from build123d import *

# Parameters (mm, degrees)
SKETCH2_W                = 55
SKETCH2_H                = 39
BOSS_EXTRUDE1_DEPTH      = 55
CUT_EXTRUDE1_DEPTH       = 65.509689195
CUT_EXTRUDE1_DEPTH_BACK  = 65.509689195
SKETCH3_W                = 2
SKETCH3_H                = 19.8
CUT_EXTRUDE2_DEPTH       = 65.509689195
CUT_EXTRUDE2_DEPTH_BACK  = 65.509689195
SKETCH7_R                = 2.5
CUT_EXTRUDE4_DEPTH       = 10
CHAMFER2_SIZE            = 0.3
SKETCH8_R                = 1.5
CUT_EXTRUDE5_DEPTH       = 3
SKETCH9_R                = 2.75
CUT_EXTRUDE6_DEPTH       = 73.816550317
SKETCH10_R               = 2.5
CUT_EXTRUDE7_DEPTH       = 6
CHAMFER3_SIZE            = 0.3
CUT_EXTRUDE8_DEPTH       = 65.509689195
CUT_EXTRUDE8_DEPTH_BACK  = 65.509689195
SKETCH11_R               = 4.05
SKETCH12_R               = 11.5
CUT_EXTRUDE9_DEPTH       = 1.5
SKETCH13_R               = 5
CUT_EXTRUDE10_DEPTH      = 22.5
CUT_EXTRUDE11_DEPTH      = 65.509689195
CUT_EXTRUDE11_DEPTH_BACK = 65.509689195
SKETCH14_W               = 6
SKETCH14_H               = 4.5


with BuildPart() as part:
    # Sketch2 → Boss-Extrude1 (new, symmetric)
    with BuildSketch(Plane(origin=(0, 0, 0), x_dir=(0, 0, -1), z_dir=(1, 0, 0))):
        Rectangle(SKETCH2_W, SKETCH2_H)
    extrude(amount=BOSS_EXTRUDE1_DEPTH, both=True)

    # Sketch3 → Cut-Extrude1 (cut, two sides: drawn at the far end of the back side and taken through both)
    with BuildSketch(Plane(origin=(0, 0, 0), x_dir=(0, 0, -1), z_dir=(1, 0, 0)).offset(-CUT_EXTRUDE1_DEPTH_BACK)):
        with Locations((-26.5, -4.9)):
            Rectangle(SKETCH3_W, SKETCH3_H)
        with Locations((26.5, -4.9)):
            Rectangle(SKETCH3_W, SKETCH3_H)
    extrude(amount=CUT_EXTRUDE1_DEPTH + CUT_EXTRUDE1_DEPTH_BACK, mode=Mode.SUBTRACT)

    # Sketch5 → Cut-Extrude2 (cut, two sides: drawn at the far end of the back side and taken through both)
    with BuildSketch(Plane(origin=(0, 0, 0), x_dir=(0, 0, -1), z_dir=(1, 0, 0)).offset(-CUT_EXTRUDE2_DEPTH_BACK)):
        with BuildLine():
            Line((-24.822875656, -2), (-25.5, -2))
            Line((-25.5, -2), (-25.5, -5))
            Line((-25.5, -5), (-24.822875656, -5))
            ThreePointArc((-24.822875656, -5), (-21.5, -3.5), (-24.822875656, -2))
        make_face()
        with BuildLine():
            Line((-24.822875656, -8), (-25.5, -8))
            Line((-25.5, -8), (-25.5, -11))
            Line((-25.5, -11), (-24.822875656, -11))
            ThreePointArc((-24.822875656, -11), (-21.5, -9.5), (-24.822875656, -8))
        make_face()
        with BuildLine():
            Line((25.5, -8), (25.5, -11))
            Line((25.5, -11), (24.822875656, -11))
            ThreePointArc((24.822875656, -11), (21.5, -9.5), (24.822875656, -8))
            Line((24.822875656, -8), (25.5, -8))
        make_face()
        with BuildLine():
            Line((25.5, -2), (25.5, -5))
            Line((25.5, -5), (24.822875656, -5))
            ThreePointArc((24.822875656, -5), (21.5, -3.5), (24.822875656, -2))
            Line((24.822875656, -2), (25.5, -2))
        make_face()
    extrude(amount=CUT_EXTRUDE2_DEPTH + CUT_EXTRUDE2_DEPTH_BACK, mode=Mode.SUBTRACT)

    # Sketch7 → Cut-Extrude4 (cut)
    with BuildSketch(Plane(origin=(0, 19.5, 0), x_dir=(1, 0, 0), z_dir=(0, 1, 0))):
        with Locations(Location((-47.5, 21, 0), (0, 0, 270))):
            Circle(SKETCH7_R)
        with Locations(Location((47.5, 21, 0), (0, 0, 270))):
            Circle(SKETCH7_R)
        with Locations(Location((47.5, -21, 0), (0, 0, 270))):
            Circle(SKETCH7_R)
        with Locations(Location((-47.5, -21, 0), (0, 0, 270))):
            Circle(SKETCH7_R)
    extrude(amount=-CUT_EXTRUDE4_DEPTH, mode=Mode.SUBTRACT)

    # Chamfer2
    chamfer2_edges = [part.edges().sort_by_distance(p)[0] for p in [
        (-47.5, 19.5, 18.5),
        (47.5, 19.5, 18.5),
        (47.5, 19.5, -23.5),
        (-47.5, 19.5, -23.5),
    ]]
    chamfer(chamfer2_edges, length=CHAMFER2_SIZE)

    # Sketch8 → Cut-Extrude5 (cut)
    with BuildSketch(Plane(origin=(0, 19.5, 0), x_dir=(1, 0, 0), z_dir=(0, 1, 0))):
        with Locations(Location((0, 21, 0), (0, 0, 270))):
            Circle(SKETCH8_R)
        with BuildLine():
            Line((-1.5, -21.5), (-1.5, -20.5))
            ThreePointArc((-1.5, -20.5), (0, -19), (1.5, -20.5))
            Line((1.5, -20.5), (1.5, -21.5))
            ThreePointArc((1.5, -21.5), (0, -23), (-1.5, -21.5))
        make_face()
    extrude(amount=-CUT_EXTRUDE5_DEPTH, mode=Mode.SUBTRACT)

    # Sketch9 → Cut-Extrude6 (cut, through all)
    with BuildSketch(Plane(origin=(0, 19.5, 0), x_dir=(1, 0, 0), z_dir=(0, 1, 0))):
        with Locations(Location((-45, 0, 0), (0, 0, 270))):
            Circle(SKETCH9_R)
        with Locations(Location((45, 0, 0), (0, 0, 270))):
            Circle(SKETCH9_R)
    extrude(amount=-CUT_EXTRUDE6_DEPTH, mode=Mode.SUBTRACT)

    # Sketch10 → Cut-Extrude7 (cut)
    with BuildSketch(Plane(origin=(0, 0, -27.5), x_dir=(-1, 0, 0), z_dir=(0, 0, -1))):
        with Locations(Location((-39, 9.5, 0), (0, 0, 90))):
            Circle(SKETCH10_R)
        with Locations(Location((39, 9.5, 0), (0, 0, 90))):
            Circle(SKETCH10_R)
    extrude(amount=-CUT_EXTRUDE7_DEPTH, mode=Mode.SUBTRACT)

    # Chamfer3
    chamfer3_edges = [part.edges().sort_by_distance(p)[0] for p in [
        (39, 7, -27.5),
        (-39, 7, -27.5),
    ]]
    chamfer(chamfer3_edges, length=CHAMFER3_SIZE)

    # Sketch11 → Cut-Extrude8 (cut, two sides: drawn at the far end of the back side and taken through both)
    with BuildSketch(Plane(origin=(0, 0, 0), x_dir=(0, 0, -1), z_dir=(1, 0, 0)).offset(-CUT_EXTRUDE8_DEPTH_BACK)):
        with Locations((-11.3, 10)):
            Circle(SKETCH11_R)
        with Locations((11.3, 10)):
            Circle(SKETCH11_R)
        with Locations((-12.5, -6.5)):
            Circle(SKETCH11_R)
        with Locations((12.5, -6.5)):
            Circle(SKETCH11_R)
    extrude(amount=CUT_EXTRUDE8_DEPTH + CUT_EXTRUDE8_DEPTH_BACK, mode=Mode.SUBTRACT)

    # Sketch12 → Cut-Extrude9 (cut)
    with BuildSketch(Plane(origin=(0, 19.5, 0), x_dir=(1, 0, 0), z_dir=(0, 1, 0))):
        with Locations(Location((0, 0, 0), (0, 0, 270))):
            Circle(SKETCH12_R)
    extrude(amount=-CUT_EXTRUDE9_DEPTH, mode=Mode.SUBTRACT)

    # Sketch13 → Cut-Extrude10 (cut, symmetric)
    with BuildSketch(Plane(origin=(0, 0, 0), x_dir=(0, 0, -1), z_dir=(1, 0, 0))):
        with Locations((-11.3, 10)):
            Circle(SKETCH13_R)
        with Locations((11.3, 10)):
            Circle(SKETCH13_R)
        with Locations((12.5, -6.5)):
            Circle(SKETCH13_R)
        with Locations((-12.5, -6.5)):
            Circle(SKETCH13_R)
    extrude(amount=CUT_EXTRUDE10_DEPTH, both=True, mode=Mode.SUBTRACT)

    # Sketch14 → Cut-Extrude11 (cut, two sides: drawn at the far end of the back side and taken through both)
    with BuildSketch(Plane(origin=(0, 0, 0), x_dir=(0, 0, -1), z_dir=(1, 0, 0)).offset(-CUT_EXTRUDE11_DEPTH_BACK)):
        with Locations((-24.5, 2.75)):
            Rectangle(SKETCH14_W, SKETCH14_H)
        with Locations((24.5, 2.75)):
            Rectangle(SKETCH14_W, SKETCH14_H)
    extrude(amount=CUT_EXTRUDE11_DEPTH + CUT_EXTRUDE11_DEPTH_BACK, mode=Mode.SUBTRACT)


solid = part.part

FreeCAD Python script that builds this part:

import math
import FreeCAD as App
import Part
import Sketcher
from FreeCAD import Vector


def edges_at(feature, points):
    """Names of the edges that pass closest to the given points."""
    edges = feature.Shape.Edges
    near = lambda p: min(range(len(edges)), key=lambda i: edges[i].distToShape(Part.Vertex(*p))[0])
    return sorted({f"Edge{near(p) + 1}" for p in points})

doc = App.newDocument("Part")
body = doc.addObject("PartDesign::Body", "Body")

sketch1 = doc.addObject("Sketcher::SketchObject", "Sketch")
body.addObject(sketch1)
sketch1.AttachmentSupport = (doc.YZ_Plane, [""])
sketch1.MapMode = "FlatFace"
sketch1.addGeometry([
    Part.LineSegment(Vector(19.5, 27.5, 0), Vector(-19.5, 27.5, 0)),
    Part.LineSegment(Vector(-19.5, 27.5, 0), Vector(-19.5, -27.5, 0)),
    Part.LineSegment(Vector(-19.5, -27.5, 0), Vector(19.5, -27.5, 0)),
    Part.LineSegment(Vector(19.5, -27.5, 0), Vector(19.5, 27.5, 0)),
], False)
sketch1.addConstraint([
    Sketcher.Constraint("Coincident", 0, 2, 1, 1),
    Sketcher.Constraint("Coincident", 1, 2, 2, 1),
    Sketcher.Constraint("Coincident", 2, 2, 3, 1),
    Sketcher.Constraint("Coincident", 3, 2, 0, 1),
    Sketcher.Constraint("Horizontal", 0),
    Sketcher.Constraint("Vertical", 1),
    Sketcher.Constraint("Horizontal", 2),
    Sketcher.Constraint("Vertical", 3),
    Sketcher.Constraint("Symmetric", 0, 2, 2, 2, -1, 1),
    Sketcher.Constraint("DistanceX", 0, 2, 0, 1, 39.0),
    Sketcher.Constraint("DistanceY", 1, 2, 1, 1, 55.0),
])
pad1 = doc.addObject("PartDesign::Pad", "Pad")
body.addObject(pad1)
pad1.Profile = sketch1
pad1.Length = 110
pad1.Midplane = True

sketch2 = doc.addObject("Sketcher::SketchObject", "Sketch001")
body.addObject(sketch2)
sketch2.AttachmentSupport = (doc.YZ_Plane, [""])
sketch2.MapMode = "FlatFace"
sketch2.addGeometry([
    Part.LineSegment(Vector(5, 27.5, 0), Vector(-14.8, 27.5, 0)),
    Part.LineSegment(Vector(-14.8, 27.5, 0), Vector(-14.8, 25.5, 0)),
    Part.LineSegment(Vector(-14.8, 25.5, 0), Vector(5, 25.5, 0)),
    Part.LineSegment(Vector(5, 25.5, 0), Vector(5, 27.5, 0)),
    Part.LineSegment(Vector(5, -25.5, 0), Vector(-14.8, -25.5, 0)),
    Part.LineSegment(Vector(-14.8, -25.5, 0), Vector(-14.8, -27.5, 0)),
    Part.LineSegment(Vector(-14.8, -27.5, 0), Vector(5, -27.5, 0)),
    Part.LineSegment(Vector(5, -27.5, 0), Vector(5, -25.5, 0)),
], False)
sketch2.addConstraint([
    Sketcher.Constraint("Coincident", 0, 2, 1, 1),
    Sketcher.Constraint("Coincident", 1, 2, 2, 1),
    Sketcher.Constraint("Coincident", 2, 2, 3, 1),
    Sketcher.Constraint("Coincident", 3, 2, 0, 1),
    Sketcher.Constraint("Coincident", 4, 2, 5, 1),
    Sketcher.Constraint("Coincident", 5, 2, 6, 1),
    Sketcher.Constraint("Coincident", 6, 2, 7, 1),
    Sketcher.Constraint("Coincident", 7, 2, 4, 1),
    Sketcher.Constraint("Horizontal", 0),
    Sketcher.Constraint("Vertical", 1),
    Sketcher.Constraint("Horizontal", 2),
    Sketcher.Constraint("Vertical", 3),
    Sketcher.Constraint("Horizontal", 4),
    Sketcher.Constraint("Vertical", 5),
    Sketcher.Constraint("Horizontal", 6),
    Sketcher.Constraint("Vertical", 7),
    Sketcher.Constraint("Symmetric", 1, 2, 4, 2, -1),
    Sketcher.Constraint("Symmetric", 3, 2, 6, 2, -1),
    Sketcher.Constraint("DistanceY", 1, 2, 1, 1, 2.0),
    Sketcher.Constraint("DistanceX", 0, 2, 0, 1, 19.8),
    Sketcher.Constraint("DistanceX", -1, 1, 2, 2, 5.0),
    Sketcher.Constraint("DistanceY", 4, 2, 1, 2, 51.0),
])
pocket1 = doc.addObject("PartDesign::Pocket", "Pocket")
body.addObject(pocket1)
pocket1.Profile = sketch2
pocket1.Type = "ThroughAll"
pocket1.Midplane = True

sketch3 = doc.addObject("Sketcher::SketchObject", "Sketch002")
body.addObject(sketch3)
sketch3.AttachmentSupport = (doc.YZ_Plane, [""])
sketch3.MapMode = "FlatFace"
sketch3.addGeometry([
    Part.LineSegment(Vector(-2, 24.822876, 0), Vector(-2, 25.5, 0)),
    Part.LineSegment(Vector(-2, 25.5, 0), Vector(-5, 25.5, 0)),
    Part.LineSegment(Vector(-5, 25.5, 0), Vector(-5, 24.822876, 0)),
    Part.ArcOfCircle(Part.Circle(Vector(-3.5, 23.5, 0), Vector(0, 0, 1), 2), math.radians(138.590378), math.radians(401.409622)),
    Part.LineSegment(Vector(-8, 24.822876, 0), Vector(-8, 25.5, 0)),
    Part.LineSegment(Vector(-8, 25.5, 0), Vector(-11, 25.5, 0)),
    Part.LineSegment(Vector(-11, 25.5, 0), Vector(-11, 24.822876, 0)),
    Part.ArcOfCircle(Part.Circle(Vector(-9.5, 23.5, 0), Vector(0, 0, 1), 2), math.radians(138.590378), math.radians(401.409622)),
    Part.LineSegment(Vector(-11, -25.5, 0), Vector(-8, -25.5, 0)),
    Part.LineSegment(Vector(-8, -25.5, 0), Vector(-8, -24.822876, 0)),
    Part.ArcOfCircle(Part.Circle(Vector(-9.5, -23.5, 0), Vector(0, 0, 1), 2), math.radians(-41.409622), math.radians(221.409622)),
    Part.LineSegment(Vector(-11, -24.822876, 0), Vector(-11, -25.5, 0)),
    Part.LineSegment(Vector(-5, -25.5, 0), Vector(-2, -25.5, 0)),
    Part.LineSegment(Vector(-2, -25.5, 0), Vector(-2, -24.822876, 0)),
    Part.ArcOfCircle(Part.Circle(Vector(-3.5, -23.5, 0), Vector(0, 0, 1), 2), math.radians(-41.409622), math.radians(221.409622)),
    Part.LineSegment(Vector(-5, -24.822876, 0), Vector(-5, -25.5, 0)),
], False)
sketch3.addConstraint([
    Sketcher.Constraint("Coincident", 0, 2, 1, 1),
    Sketcher.Constraint("Coincident", 1, 2, 2, 1),
    Sketcher.Constraint("Coincident", 2, 2, 3, 1),
    Sketcher.Constraint("Coincident", 3, 2, 0, 1),
    Sketcher.Constraint("Coincident", 4, 2, 5, 1),
    Sketcher.Constraint("Coincident", 5, 2, 6, 1),
    Sketcher.Constraint("Coincident", 6, 2, 7, 1),
    Sketcher.Constraint("Coincident", 7, 2, 4, 1),
    Sketcher.Constraint("Coincident", 8, 2, 9, 1),
    Sketcher.Constraint("Coincident", 9, 2, 10, 1),
    Sketcher.Constraint("Coincident", 10, 2, 11, 1),
    Sketcher.Constraint("Coincident", 11, 2, 8, 1),
    Sketcher.Constraint("Coincident", 12, 2, 13, 1),
    Sketcher.Constraint("Coincident", 13, 2, 14, 1),
    Sketcher.Constraint("Coincident", 14, 2, 15, 1),
    Sketcher.Constraint("Coincident", 15, 2, 12, 1),
    Sketcher.Constraint("Vertical", 0),
    Sketcher.Constraint("Horizontal", 1),
    Sketcher.Constraint("Vertical", 2),
    Sketcher.Constraint("Vertical", 4),
    Sketcher.Constraint("Horizontal", 5),
    Sketcher.Constraint("Vertical", 6),
    Sketcher.Constraint("Horizontal", 8),
    Sketcher.Constraint("Vertical", 9),
    Sketcher.Constraint("Vertical", 11),
    Sketcher.Constraint("Horizontal", 12),
    Sketcher.Constraint("Vertical", 13),
    Sketcher.Constraint("Vertical", 15),
    Sketcher.Constraint("Equal", 3, 7),
    Sketcher.Constraint("Equal", 7, 10),
    Sketcher.Constraint("Equal", 10, 14),
    Sketcher.Constraint("Symmetric", 7, 3, 10, 3, -1),
    Sketcher.Constraint("Symmetric", 3, 3, 14, 3, -1),
    Sketcher.Constraint("Symmetric", 4, 2, 8, 2, -1),
    Sketcher.Constraint("Symmetric", 0, 2, 12, 2, -1),
    Sketcher.Constraint("Horizontal", 3, 3, 7, 3),
    Sketcher.Constraint("Horizontal", 2, 2, 3, 2),
    Sketcher.Constraint("Horizontal", 1, 2, 4, 2),
    Sketcher.Constraint("Horizontal", 3, 2, 6, 2),
    Sketcher.Constraint("Horizontal", 6, 2, 7, 2),
    Sketcher.Constraint("Horizontal", 9, 2, 10, 2),
    Sketcher.Constraint("Horizontal", 13, 2, 14, 2),
    Sketcher.Constraint("Radius", 3, 2.0),
    Sketcher.Constraint("DistanceX", 1, 2, 1, 1, 3.0),
    Sketcher.Constraint("DistanceX", 0, 2, -1, 1, 2.0),
    Sketcher.Constraint("DistanceX", 4, 2, -1, 1, 8.0),
    Sketcher.Constraint("DistanceY", 10, 3, 7, 3, 47.0),
    Sketcher.Constraint("DistanceY", 3, 3, 0, 2, 2.0),
])
pocket2 = doc.addObject("PartDesign::Pocket", "Pocket001")
body.addObject(pocket2)
pocket2.Profile = sketch3
pocket2.Type = "ThroughAll"
pocket2.Midplane = True

sketch4 = doc.addObject("Sketcher::SketchObject", "Sketch003")
body.addObject(sketch4)
sketch4.AttachmentSupport = (doc.XZ_Plane, [""])
sketch4.MapMode = "FlatFace"
sketch4.AttachmentOffset = App.Placement(Vector(0, 0, -19.5), App.Rotation())
sketch4.addGeometry([
    Part.Circle(Vector(-47.5, -21, 0), Vector(0, 0, 1), 2.5),
    Part.Circle(Vector(47.5, -21, 0), Vector(0, 0, 1), 2.5),
    Part.Circle(Vector(47.5, 21, 0), Vector(0, 0, 1), 2.5),
    Part.Circle(Vector(-47.5, 21, 0), Vector(0, 0, 1), 2.5),
], False)
sketch4.addConstraint([
    Sketcher.Constraint("Equal", 0, 1),
    Sketcher.Constraint("Equal", 1, 2),
    Sketcher.Constraint("Equal", 2, 3),
    Sketcher.Constraint("Symmetric", 0, 3, 2, 3, -1, 1),
    Sketcher.Constraint("Symmetric", 1, 3, 3, 3, -1, 1),
    Sketcher.Constraint("Symmetric", 0, 3, 1, 3, -2),
    Sketcher.Constraint("Diameter", 0, 5.0),
    Sketcher.Constraint("DistanceY", 0, 3, -1, 1, 21.0),
    Sketcher.Constraint("DistanceX", 0, 3, 1, 3, 95.0),
])
pocket3 = doc.addObject("PartDesign::Pocket", "Pocket002")
body.addObject(pocket3)
pocket3.Profile = sketch4
pocket3.Length = 10
pocket3.Reversed = True
doc.recompute()

chamfer = doc.addObject("PartDesign::Chamfer", "Chamfer")
body.addObject(chamfer)
chamfer.Base = (pocket3, edges_at(pocket3, [
    (-47.5, 19.5, 18.5),
    (47.5, 19.5, 18.5),
    (47.5, 19.5, -23.5),
    (-47.5, 19.5, -23.5),
]))
chamfer.Size = 0.3

sketch5 = doc.addObject("Sketcher::SketchObject", "Sketch004")
body.addObject(sketch5)
sketch5.AttachmentSupport = (doc.XZ_Plane, [""])
sketch5.MapMode = "FlatFace"
sketch5.AttachmentOffset = App.Placement(Vector(0, 0, -19.5), App.Rotation())
sketch5.addGeometry([
    Part.Circle(Vector(0, -21, 0), Vector(0, 0, 1), 1.5),
    Part.LineSegment(Vector(-1.5, 20.5, 0), Vector(-1.5, 21.5, 0)),
    Part.ArcOfCircle(Part.Circle(Vector(0, 21.5, 0), Vector(0, 0, 1), 1.5), math.radians(0), math.radians(180)),
    Part.LineSegment(Vector(1.5, 21.5, 0), Vector(1.5, 20.5, 0)),
    Part.ArcOfCircle(Part.Circle(Vector(0, 20.5, 0), Vector(0, 0, 1), 1.5), math.radians(180), math.radians(360)),
], False)
sketch5.addConstraint([
    Sketcher.Constraint("Tangent", 1, 2, 2, 2),
    Sketcher.Constraint("Tangent", 2, 1, 3, 1),
    Sketcher.Constraint("Tangent", 3, 2, 4, 2),
    Sketcher.Constraint("Tangent", 4, 1, 1, 1),
    Sketcher.Constraint("Vertical", 1),
    Sketcher.Constraint("Vertical", 3),
    Sketcher.Constraint("Equal", 0, 2),
    Sketcher.Constraint("PointOnObject", 0, 3, -2),
    Sketcher.Constraint("PointOnObject", 2, 3, -2),
    Sketcher.Constraint("Diameter", 0, 3.0),
    Sketcher.Constraint("DistanceY", 1, 1, 1, 2, 1.0),
    Sketcher.Constraint("DistanceY", 0, 3, -1, 1, 21.0),
    Sketcher.Constraint("DistanceY", -1, 1, 2, 3, 21.5),
])
pocket4 = doc.addObject("PartDesign::Pocket", "Pocket003")
body.addObject(pocket4)
pocket4.Profile = sketch5
pocket4.Length = 3
pocket4.Reversed = True

sketch6 = doc.addObject("Sketcher::SketchObject", "Sketch005")
body.addObject(sketch6)
sketch6.AttachmentSupport = (doc.XZ_Plane, [""])
sketch6.MapMode = "FlatFace"
sketch6.AttachmentOffset = App.Placement(Vector(0, 0, -19.5), App.Rotation())
sketch6.addGeometry([
    Part.Circle(Vector(-45, 0, 0), Vector(0, 0, 1), 2.75),
    Part.Circle(Vector(45, 0, 0), Vector(0, 0, 1), 2.75),
], False)
sketch6.addConstraint([
    Sketcher.Constraint("Equal", 0, 1),
    Sketcher.Constraint("Symmetric", 0, 3, 1, 3, -1, 1),
    Sketcher.Constraint("PointOnObject", 0, 3, -1),
    Sketcher.Constraint("Diameter", 0, 5.5),
    Sketcher.Constraint("DistanceX", 0, 3, -1, 1, 45.0),
])
pocket5 = doc.addObject("PartDesign::Pocket", "Pocket004")
body.addObject(pocket5)
pocket5.Profile = sketch6
pocket5.Type = "ThroughAll"
pocket5.Reversed = True

sketch7 = doc.addObject("Sketcher::SketchObject", "Sketch006")
body.addObject(sketch7)
sketch7.AttachmentSupport = (doc.XY_Plane, [""])
sketch7.MapMode = "FlatFace"
sketch7.AttachmentOffset = App.Placement(Vector(0, 0, -27.5), App.Rotation())
sketch7.addGeometry([
    Part.Circle(Vector(39, 9.5, 0), Vector(0, 0, 1), 2.5),
    Part.Circle(Vector(-39, 9.5, 0), Vector(0, 0, 1), 2.5),
], False)
sketch7.addConstraint([
    Sketcher.Constraint("Equal", 0, 1),
    Sketcher.Constraint("Symmetric", 0, 3, 1, 3, -2),
    Sketcher.Constraint("Diameter", 0, 5.0),
    Sketcher.Constraint("DistanceX", -1, 1, 0, 3, 39.0),
    Sketcher.Constraint("DistanceY", -1, 1, 0, 3, 9.5),
])
pocket6 = doc.addObject("PartDesign::Pocket", "Pocket005")
body.addObject(pocket6)
pocket6.Profile = sketch7
pocket6.Length = 6
pocket6.Reversed = True
doc.recompute()

chamfer2 = doc.addObject("PartDesign::Chamfer", "Chamfer001")
body.addObject(chamfer2)
chamfer2.Base = (pocket6, edges_at(pocket6, [(39, 7, -27.5), (-39, 7, -27.5)]))
chamfer2.Size = 0.3

sketch8 = doc.addObject("Sketcher::SketchObject", "Sketch007")
body.addObject(sketch8)
sketch8.AttachmentSupport = (doc.YZ_Plane, [""])
sketch8.MapMode = "FlatFace"
sketch8.addGeometry([
    Part.Circle(Vector(10, 11.3, 0), Vector(0, 0, 1), 4.05),
    Part.Circle(Vector(10, -11.3, 0), Vector(0, 0, 1), 4.05),
    Part.Circle(Vector(-6.5, 12.5, 0), Vector(0, 0, 1), 4.05),
    Part.Circle(Vector(-6.5, -12.5, 0), Vector(0, 0, 1), 4.05),
], False)
sketch8.addConstraint([
    Sketcher.Constraint("Equal", 0, 1),
    Sketcher.Constraint("Equal", 1, 2),
    Sketcher.Constraint("Equal", 2, 3),
    Sketcher.Constraint("Symmetric", 0, 3, 1, 3, -1),
    Sketcher.Constraint("Symmetric", 2, 3, 3, 3, -1),
    Sketcher.Constraint("Diameter", 0, 8.1),
    Sketcher.Constraint("DistanceX", -1, 1, 0, 3, 10.0),
    Sketcher.Constraint("DistanceY", 3, 3, 2, 3, 25.0),
    Sketcher.Constraint("DistanceY", -1, 1, 0, 3, 11.3),
    Sketcher.Constraint("DistanceX", 2, 3, -1, 1, 6.5),
])
pocket7 = doc.addObject("PartDesign::Pocket", "Pocket006")
body.addObject(pocket7)
pocket7.Profile = sketch8
pocket7.Type = "ThroughAll"
pocket7.Midplane = True

sketch9 = doc.addObject("Sketcher::SketchObject", "Sketch008")
body.addObject(sketch9)
sketch9.AttachmentSupport = (doc.XZ_Plane, [""])
sketch9.MapMode = "FlatFace"
sketch9.AttachmentOffset = App.Placement(Vector(0, 0, -19.5), App.Rotation())
sketch9.addGeometry(Part.Circle(Vector(0, 0, 0), Vector(0, 0, 1), 11.5), False)
sketch9.addConstraint([
    Sketcher.Constraint("Coincident", 0, 3, -1, 1),
    Sketcher.Constraint("Diameter", 0, 23.0),
])
pocket8 = doc.addObject("PartDesign::Pocket", "Pocket007")
body.addObject(pocket8)
pocket8.Profile = sketch9
pocket8.Length = 1.5
pocket8.Reversed = True

sketch10 = doc.addObject("Sketcher::SketchObject", "Sketch009")
body.addObject(sketch10)
sketch10.AttachmentSupport = (doc.YZ_Plane, [""])
sketch10.MapMode = "FlatFace"
sketch10.addGeometry([
    Part.Circle(Vector(10, 11.3, 0), Vector(0, 0, 1), 5),
    Part.Circle(Vector(10, -11.3, 0), Vector(0, 0, 1), 5),
    Part.Circle(Vector(-6.5, -12.5, 0), Vector(0, 0, 1), 5),
    Part.Circle(Vector(-6.5, 12.5, 0), Vector(0, 0, 1), 5),
], False)
sketch10.addConstraint([
    Sketcher.Constraint("Equal", 0, 1),
    Sketcher.Constraint("Equal", 1, 2),
    Sketcher.Constraint("Equal", 2, 3),
    Sketcher.Constraint("Symmetric", 0, 3, 1, 3, -1),
    Sketcher.Constraint("Symmetric", 2, 3, 3, 3, -1),
    Sketcher.Constraint("Diameter", 0, 10.0),
    Sketcher.Constraint("DistanceX", -1, 1, 0, 3, 10.0),
    Sketcher.Constraint("DistanceY", 2, 3, 3, 3, 25.0),
    Sketcher.Constraint("DistanceY", -1, 1, 0, 3, 11.3),
    Sketcher.Constraint("DistanceX", 2, 3, -1, 1, 6.5),
])
pocket9 = doc.addObject("PartDesign::Pocket", "Pocket008")
body.addObject(pocket9)
pocket9.Profile = sketch10
pocket9.Length = 45
pocket9.Midplane = True

sketch11 = doc.addObject("Sketcher::SketchObject", "Sketch010")
body.addObject(sketch11)
sketch11.AttachmentSupport = (doc.YZ_Plane, [""])
sketch11.MapMode = "FlatFace"
sketch11.addGeometry([
    Part.LineSegment(Vector(5, 27.5, 0), Vector(0.5, 27.5, 0)),
    Part.LineSegment(Vector(0.5, 27.5, 0), Vector(0.5, 21.5, 0)),
    Part.LineSegment(Vector(0.5, 21.5, 0), Vector(5, 21.5, 0)),
    Part.LineSegment(Vector(5, 21.5, 0), Vector(5, 27.5, 0)),
    Part.LineSegment(Vector(5, -21.5, 0), Vector(0.5, -21.5, 0)),
    Part.LineSegment(Vector(0.5, -21.5, 0), Vector(0.5, -27.5, 0)),
    Part.LineSegment(Vector(0.5, -27.5, 0), Vector(5, -27.5, 0)),
    Part.LineSegment(Vector(5, -27.5, 0), Vector(5, -21.5, 0)),
], False)
sketch11.addConstraint([
    Sketcher.Constraint("Coincident", 0, 2, 1, 1),
    Sketcher.Constraint("Coincident", 1, 2, 2, 1),
    Sketcher.Constraint("Coincident", 2, 2, 3, 1),
    Sketcher.Constraint("Coincident", 3, 2, 0, 1),
    Sketcher.Constraint("Coincident", 4, 2, 5, 1),
    Sketcher.Constraint("Coincident", 5, 2, 6, 1),
    Sketcher.Constraint("Coincident", 6, 2, 7, 1),
    Sketcher.Constraint("Coincident", 7, 2, 4, 1),
    Sketcher.Constraint("Horizontal", 0),
    Sketcher.Constraint("Vertical", 1),
    Sketcher.Constraint("Horizontal", 2),
    Sketcher.Constraint("Vertical", 3),
    Sketcher.Constraint("Horizontal", 4),
    Sketcher.Constraint("Vertical", 5),
    Sketcher.Constraint("Horizontal", 6),
    Sketcher.Constraint("Vertical", 7),
    Sketcher.Constraint("Symmetric", 1, 2, 4, 2, -1),
    Sketcher.Constraint("Symmetric", 3, 2, 6, 2, -1),
    Sketcher.Constraint("DistanceY", 1, 2, 1, 1, 6.0),
    Sketcher.Constraint("DistanceX", 0, 2, 0, 1, 4.5),
    Sketcher.Constraint("DistanceX", -1, 1, 2, 2, 5.0),
    Sketcher.Constraint("DistanceY", 4, 2, 1, 2, 43.0),
])
pocket10 = doc.addObject("PartDesign::Pocket", "Pocket009")
body.addObject(pocket10)
pocket10.Profile = sketch11
pocket10.Type = "ThroughAll"
pocket10.Midplane = True

doc.recompute()
